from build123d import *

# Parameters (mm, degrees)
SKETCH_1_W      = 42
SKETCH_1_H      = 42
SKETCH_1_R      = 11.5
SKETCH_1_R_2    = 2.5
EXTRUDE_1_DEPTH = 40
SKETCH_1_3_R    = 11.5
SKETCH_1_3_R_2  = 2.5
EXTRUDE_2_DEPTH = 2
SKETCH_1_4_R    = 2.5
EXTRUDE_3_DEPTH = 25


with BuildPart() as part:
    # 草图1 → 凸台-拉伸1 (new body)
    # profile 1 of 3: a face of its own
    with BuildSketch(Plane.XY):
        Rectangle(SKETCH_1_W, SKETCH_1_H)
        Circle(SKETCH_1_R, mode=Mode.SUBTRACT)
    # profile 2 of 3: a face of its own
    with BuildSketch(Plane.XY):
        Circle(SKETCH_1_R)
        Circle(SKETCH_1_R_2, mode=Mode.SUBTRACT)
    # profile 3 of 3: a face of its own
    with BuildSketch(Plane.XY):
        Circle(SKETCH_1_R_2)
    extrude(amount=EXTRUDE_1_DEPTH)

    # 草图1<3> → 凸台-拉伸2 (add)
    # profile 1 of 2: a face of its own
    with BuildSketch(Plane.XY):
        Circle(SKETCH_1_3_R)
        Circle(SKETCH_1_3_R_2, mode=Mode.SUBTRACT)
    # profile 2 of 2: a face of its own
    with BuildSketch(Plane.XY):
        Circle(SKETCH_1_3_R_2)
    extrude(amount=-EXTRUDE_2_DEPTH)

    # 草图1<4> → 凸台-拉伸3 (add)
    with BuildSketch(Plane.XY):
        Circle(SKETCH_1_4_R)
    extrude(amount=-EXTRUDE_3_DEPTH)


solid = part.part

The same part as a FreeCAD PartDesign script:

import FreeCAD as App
import Part
import Sketcher

doc = App.newDocument("Part")
params = doc.addObject("Spreadsheet::Sheet", "Params")
for row, (alias, value) in enumerate([
    ("sketch1_width", "42 mm"),
    ("pad1_length", "40 mm"),
    ("sketch2_diameter", "23 mm"),
    ("pad2_length", "2 mm"),
    ("sketch3_diameter", "5 mm"),
    ("pad3_length", "25 mm"),
], start=1):
    params.set(f"A{row}", alias)
    params.set(f"B{row}", "=" + value)
    params.setAlias(f"B{row}", alias)

body = doc.addObject("PartDesign::Body", "Body")

# Sketch on XY plane
sketch1 = doc.addObject("Sketcher::SketchObject", "Sketch")
body.addObject(sketch1)
sketch1.AttachmentSupport = (doc.XY_Plane, [""])
sketch1.MapMode = "FlatFace"
sketch1.addGeometry(Part.LineSegment(App.Vector(-21, 21, 0), App.Vector(-21, -21, 0)), False)
sketch1.addGeometry(Part.LineSegment(App.Vector(-21, -21, 0), App.Vector(21, -21, 0)), False)
sketch1.addGeometry(Part.LineSegment(App.Vector(21, -21, 0), App.Vector(21, 21, 0)), False)
sketch1.addGeometry(Part.LineSegment(App.Vector(21, 21, 0), App.Vector(-21, 21, 0)), False)
sketch1.addConstraint(Sketcher.Constraint("Coincident", 0, 2, 1, 1))
sketch1.addConstraint(Sketcher.Constraint("Coincident", 1, 2, 2, 1))
sketch1.addConstraint(Sketcher.Constraint("Coincident", 2, 2, 3, 1))
sketch1.addConstraint(Sketcher.Constraint("Coincident", 3, 2, 0, 1))
sketch1.addConstraint(Sketcher.Constraint("Vertical", 0))
sketch1.addConstraint(Sketcher.Constraint("Horizontal", 1))
sketch1.addConstraint(Sketcher.Constraint("Vertical", 2))
sketch1.addConstraint(Sketcher.Constraint("Horizontal", 3))
sketch1.addConstraint(Sketcher.Constraint("Symmetric", 0, 2, 2, 2, -1, 1))
sketch1.addConstraint(Sketcher.Constraint("Equal", 3, 0))
sketch1.addConstraint(Sketcher.Constraint("DistanceX", 1, 1, 1, 2, 42.0))
sketch1.setExpression("Constraints[10]", "Params.sketch1_width")
pad1 = doc.addObject("PartDesign::Pad", "Pad")
body.addObject(pad1)
pad1.Profile = sketch1
pad1.setExpression("Length", "Params.pad1_length")

# Sketch on XY plane
sketch2 = doc.addObject("Sketcher::SketchObject", "Sketch001")
body.addObject(sketch2)
sketch2.AttachmentSupport = (doc.XY_Plane, [""])
sketch2.MapMode = "FlatFace"
sketch2.addGeometry(Part.Circle(App.Vector(0, 0, 0), App.Vector(0, 0, 1), 12), False)
sketch2.addConstraint(Sketcher.Constraint("Coincident", 0, 3, -1, 1))
sketch2.addConstraint(Sketcher.Constraint("Diameter", 0, 23.0))
sketch2.setExpression("Constraints[1]", "Params.sketch2_diameter")
pad2 = doc.addObject("PartDesign::Pad", "Pad001")
body.addObject(pad2)
pad2.Profile = sketch2
pad2.setExpression("Length", "Params.pad2_length")
pad2.Reversed = True

# Sketch on XY plane
sketch3 = doc.addObject("Sketcher::SketchObject", "Sketch002")
body.addObject(sketch3)
sketch3.AttachmentSupport = (doc.XY_Plane, [""])
sketch3.MapMode = "FlatFace"
sketch3.addGeometry(Part.Circle(App.Vector(0, 0, 0), App.Vector(0, 0, 1), 2.5), False)
sketch3.addConstraint(Sketcher.Constraint("Coincident", 0, 3, -1, 1))
sketch3.addConstraint(Sketcher.Constraint("Diameter", 0, 5.0))
sketch3.setExpression("Constraints[1]", "Params.sketch3_diameter")
pad3 = doc.addObject("PartDesign::Pad", "Pad002")
body.addObject(pad3)
pad3.Profile = sketch3
pad3.setExpression("Length", "Params.pad3_length")
pad3.Reversed = True

doc.recompute()
